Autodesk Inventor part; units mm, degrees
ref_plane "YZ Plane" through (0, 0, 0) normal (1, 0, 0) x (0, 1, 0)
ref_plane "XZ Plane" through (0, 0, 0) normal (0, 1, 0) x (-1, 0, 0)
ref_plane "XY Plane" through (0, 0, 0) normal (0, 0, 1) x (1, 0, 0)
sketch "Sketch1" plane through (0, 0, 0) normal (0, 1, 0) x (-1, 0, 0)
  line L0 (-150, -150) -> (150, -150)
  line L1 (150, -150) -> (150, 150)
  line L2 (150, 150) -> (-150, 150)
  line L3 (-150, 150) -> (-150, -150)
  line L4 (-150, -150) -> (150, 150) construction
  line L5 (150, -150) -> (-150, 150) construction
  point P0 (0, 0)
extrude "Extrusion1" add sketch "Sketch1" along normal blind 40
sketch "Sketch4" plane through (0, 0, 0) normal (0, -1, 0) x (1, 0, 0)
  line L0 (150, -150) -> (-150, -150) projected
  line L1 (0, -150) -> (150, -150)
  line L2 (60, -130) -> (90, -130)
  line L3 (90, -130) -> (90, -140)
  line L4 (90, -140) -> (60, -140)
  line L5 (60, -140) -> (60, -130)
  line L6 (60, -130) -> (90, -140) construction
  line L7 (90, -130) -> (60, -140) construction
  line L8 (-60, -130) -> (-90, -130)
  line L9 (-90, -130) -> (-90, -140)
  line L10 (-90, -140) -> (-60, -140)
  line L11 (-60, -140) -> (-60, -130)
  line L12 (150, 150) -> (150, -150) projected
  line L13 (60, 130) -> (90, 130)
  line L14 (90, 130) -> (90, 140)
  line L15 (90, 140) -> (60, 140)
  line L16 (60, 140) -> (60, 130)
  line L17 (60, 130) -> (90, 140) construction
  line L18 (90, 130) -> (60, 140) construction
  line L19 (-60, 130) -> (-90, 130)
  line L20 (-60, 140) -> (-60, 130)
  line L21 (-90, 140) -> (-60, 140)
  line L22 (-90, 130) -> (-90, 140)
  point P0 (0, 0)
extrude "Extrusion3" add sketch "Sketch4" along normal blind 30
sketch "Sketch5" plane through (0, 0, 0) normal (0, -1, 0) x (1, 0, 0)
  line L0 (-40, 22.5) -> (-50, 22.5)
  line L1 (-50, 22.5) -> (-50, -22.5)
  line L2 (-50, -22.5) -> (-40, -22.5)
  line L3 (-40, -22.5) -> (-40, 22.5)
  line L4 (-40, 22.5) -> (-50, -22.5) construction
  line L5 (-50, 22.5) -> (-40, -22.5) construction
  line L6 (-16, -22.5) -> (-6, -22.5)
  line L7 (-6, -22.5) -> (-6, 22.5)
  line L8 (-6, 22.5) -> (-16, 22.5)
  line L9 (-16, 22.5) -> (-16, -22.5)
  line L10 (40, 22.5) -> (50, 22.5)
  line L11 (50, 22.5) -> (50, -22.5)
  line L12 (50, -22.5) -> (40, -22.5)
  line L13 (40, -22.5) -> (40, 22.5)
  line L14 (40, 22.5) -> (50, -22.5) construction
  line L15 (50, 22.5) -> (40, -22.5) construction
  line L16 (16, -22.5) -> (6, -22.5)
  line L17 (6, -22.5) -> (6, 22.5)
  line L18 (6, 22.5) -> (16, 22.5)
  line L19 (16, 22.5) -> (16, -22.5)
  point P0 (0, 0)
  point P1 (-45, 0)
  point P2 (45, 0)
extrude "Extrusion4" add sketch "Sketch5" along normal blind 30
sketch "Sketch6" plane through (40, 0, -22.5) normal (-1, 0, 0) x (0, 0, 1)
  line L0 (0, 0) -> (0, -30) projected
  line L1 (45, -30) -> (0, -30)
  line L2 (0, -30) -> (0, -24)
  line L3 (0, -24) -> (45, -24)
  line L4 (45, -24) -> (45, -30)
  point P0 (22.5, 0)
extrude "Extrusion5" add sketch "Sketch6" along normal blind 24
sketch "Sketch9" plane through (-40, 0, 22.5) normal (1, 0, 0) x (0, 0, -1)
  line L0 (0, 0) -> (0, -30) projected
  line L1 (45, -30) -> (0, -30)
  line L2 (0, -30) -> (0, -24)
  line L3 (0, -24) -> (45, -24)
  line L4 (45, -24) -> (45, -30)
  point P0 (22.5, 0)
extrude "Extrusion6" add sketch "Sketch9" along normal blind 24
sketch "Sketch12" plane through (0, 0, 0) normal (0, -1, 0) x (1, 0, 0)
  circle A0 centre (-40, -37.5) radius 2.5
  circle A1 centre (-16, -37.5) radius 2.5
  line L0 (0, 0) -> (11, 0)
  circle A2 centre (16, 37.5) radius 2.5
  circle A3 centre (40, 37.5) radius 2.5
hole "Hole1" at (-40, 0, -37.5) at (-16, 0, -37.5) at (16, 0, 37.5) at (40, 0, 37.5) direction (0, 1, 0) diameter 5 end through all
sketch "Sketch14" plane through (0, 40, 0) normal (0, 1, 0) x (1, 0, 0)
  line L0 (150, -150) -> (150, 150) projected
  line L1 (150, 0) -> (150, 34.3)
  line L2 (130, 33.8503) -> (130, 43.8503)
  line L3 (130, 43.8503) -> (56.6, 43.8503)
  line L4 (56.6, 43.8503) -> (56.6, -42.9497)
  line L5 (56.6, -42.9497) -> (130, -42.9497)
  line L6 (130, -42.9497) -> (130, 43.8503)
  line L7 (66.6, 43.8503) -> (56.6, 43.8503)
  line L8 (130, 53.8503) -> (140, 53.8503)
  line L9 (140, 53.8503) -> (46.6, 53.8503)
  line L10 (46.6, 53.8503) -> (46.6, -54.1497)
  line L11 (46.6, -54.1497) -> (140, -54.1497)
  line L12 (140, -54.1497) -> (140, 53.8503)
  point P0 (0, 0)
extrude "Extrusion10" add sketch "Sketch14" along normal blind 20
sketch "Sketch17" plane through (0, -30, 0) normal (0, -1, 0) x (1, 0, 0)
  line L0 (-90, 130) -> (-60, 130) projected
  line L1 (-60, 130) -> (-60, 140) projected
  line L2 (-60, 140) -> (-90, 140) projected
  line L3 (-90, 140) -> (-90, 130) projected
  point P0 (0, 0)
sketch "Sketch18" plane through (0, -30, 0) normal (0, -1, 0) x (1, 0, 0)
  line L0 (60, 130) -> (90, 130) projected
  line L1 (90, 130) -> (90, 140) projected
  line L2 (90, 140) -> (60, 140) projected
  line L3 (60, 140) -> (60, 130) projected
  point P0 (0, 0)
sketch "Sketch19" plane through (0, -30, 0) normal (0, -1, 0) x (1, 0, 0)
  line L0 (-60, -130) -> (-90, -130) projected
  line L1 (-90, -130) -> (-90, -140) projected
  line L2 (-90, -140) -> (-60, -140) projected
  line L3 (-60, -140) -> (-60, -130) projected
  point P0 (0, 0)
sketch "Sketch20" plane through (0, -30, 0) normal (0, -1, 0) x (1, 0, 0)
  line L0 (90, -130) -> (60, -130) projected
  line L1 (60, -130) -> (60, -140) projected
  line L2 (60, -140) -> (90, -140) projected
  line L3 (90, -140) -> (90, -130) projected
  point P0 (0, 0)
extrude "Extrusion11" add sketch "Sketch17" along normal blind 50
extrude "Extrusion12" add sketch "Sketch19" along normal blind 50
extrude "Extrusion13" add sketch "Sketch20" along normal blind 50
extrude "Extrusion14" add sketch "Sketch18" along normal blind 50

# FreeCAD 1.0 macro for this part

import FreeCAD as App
import Part
import Sketcher
Q = App.Units.Quantity


def add_polygon(sketch, points):
    """Adds a closed chain of lines whose ends are joined by coincident constraints."""
    first, n = sketch.GeometryCount, len(points)
    for a, b in zip(points, points[1:] + points[:1]):
        sketch.addGeometry(Part.LineSegment(App.Vector(*a, 0), App.Vector(*b, 0)), False)
    for i in range(n):
        sketch.addConstraint(Sketcher.Constraint("Coincident", first + i, 2, first + (i + 1) % n, 1))

doc = App.newDocument("Part")
body = doc.addObject("PartDesign::Body", "Body")

# Sketch on XZ plane
sketch1 = body.newObject("Sketcher::SketchObject", "Sketch")
sketch1.AttachmentSupport = (doc.getObject("XZ_Plane"), [""])
sketch1.MapMode = "FlatFace"
add_polygon(sketch1, [(150, 150), (150, -150), (-150, -150), (-150, 150)])  # lines 0-3
sketch1.addConstraint(Sketcher.Constraint("Vertical", 0))
sketch1.addConstraint(Sketcher.Constraint("Horizontal", 1))
sketch1.addConstraint(Sketcher.Constraint("Vertical", 2))
sketch1.addConstraint(Sketcher.Constraint("Horizontal", 3))
sketch1.addConstraint(Sketcher.Constraint("Symmetric", 0, 2, 2, 2, -1, 1))
sketch1.addConstraint(Sketcher.Constraint("Equal", 3, 0))
sketch1.addConstraint(Sketcher.Constraint("DistanceX", 1, 2, 1, 1, Q("300 mm")))
pad1 = body.newObject("PartDesign::Pad", "Pad")
pad1.Profile = sketch1
pad1.Length = 40
pad1.Reversed = True

# Sketch on XZ plane
sketch2 = body.newObject("Sketcher::SketchObject", "Sketch001")
sketch2.AttachmentSupport = (doc.getObject("XZ_Plane"), [""])
sketch2.MapMode = "FlatFace"
add_polygon(sketch2, [(90, -130), (60, -130), (60, -140), (90, -140)])  # lines 0-3
add_polygon(sketch2, [(-60, -140), (-60, -130), (-90, -130), (-90, -140)])  # lines 4-7
add_polygon(sketch2, [(60, 140), (60, 130), (90, 130), (90, 140)])  # lines 8-11
add_polygon(sketch2, [(-90, 130), (-60, 130), (-60, 140), (-90, 140)])  # lines 12-15
sketch2.addConstraint(Sketcher.Constraint("Horizontal", 0))
sketch2.addConstraint(Sketcher.Constraint("Vertical", 1))
sketch2.addConstraint(Sketcher.Constraint("Horizontal", 2))
sketch2.addConstraint(Sketcher.Constraint("Vertical", 3))
sketch2.addConstraint(Sketcher.Constraint("Vertical", 4))
sketch2.addConstraint(Sketcher.Constraint("Horizontal", 5))
sketch2.addConstraint(Sketcher.Constraint("Vertical", 6))
sketch2.addConstraint(Sketcher.Constraint("Horizontal", 7))
sketch2.addConstraint(Sketcher.Constraint("Vertical", 8))
sketch2.addConstraint(Sketcher.Constraint("Horizontal", 9))
sketch2.addConstraint(Sketcher.Constraint("Vertical", 10))
sketch2.addConstraint(Sketcher.Constraint("Horizontal", 11))
sketch2.addConstraint(Sketcher.Constraint("Horizontal", 12))
sketch2.addConstraint(Sketcher.Constraint("Vertical", 13))
sketch2.addConstraint(Sketcher.Constraint("Horizontal", 14))
sketch2.addConstraint(Sketcher.Constraint("Vertical", 15))
sketch2.addConstraint(Sketcher.Constraint("Symmetric", 4, 2, 8, 2, -1, 1))
sketch2.addConstraint(Sketcher.Constraint("Symmetric", 6, 2, 10, 2, -1, 1))
sketch2.addConstraint(Sketcher.Constraint("Symmetric", 0, 2, 12, 2, -1, 1))
sketch2.addConstraint(Sketcher.Constraint("Symmetric", 2, 2, 14, 2, -1, 1))
sketch2.addConstraint(Sketcher.Constraint("Symmetric", 0, 2, 4, 2, -2))
sketch2.addConstraint(Sketcher.Constraint("Symmetric", 2, 2, 6, 2, -2))
sketch2.addConstraint(Sketcher.Constraint("DistanceX", 0, 2, 0, 1, Q("30 mm")))
sketch2.addConstraint(Sketcher.Constraint("DistanceY", 1, 2, 1, 1, Q("10 mm")))
sketch2.addConstraint(Sketcher.Constraint("DistanceX", -1, 1, 0, 2, Q("60 mm")))
sketch2.addConstraint(Sketcher.Constraint("DistanceY", 0, 2, -1, 1, Q("130 mm")))
pad2 = body.newObject("PartDesign::Pad", "Pad001")
pad2.Profile = sketch2
pad2.Length = 30

# Sketch on XZ plane
sketch3 = body.newObject("Sketcher::SketchObject", "Sketch002")
sketch3.AttachmentSupport = (doc.getObject("XZ_Plane"), [""])
sketch3.MapMode = "FlatFace"
add_polygon(sketch3, [(-40, -22.5), (-40, 22.5), (-50, 22.5), (-50, -22.5)])  # lines 0-3
add_polygon(sketch3, [(-16, 22.5), (-16, -22.5), (-6, -22.5), (-6, 22.5)])  # lines 4-7
add_polygon(sketch3, [(50, 22.5), (40, 22.5), (40, -22.5), (50, -22.5)])  # lines 8-11
add_polygon(sketch3, [(6, -22.5), (16, -22.5), (16, 22.5), (6, 22.5)])  # lines 12-15
sketch3.addConstraint(Sketcher.Constraint("Vertical", 0))
sketch3.addConstraint(Sketcher.Constraint("Horizontal", 1))
sketch3.addConstraint(Sketcher.Constraint("Vertical", 2))
sketch3.addConstraint(Sketcher.Constraint("Horizontal", 3))
sketch3.addConstraint(Sketcher.Constraint("Vertical", 4))
sketch3.addConstraint(Sketcher.Constraint("Horizontal", 5))
sketch3.addConstraint(Sketcher.Constraint("Vertical", 6))
sketch3.addConstraint(Sketcher.Constraint("Horizontal", 7))
sketch3.addConstraint(Sketcher.Constraint("Horizontal", 8))
sketch3.addConstraint(Sketcher.Constraint("Vertical", 9))
sketch3.addConstraint(Sketcher.Constraint("Horizontal", 10))
sketch3.addConstraint(Sketcher.Constraint("Vertical", 11))
sketch3.addConstraint(Sketcher.Constraint("Horizontal", 12))
sketch3.addConstraint(Sketcher.Constraint("Vertical", 13))
sketch3.addConstraint(Sketcher.Constraint("Horizontal", 14))
sketch3.addConstraint(Sketcher.Constraint("Vertical", 15))
sketch3.addConstraint(Sketcher.Constraint("Symmetric", 3, 2, 8, 2, -1, 1))
sketch3.addConstraint(Sketcher.Constraint("Symmetric", 1, 2, 10, 2, -1, 1))
sketch3.addConstraint(Sketcher.Constraint("Symmetric", 7, 2, 12, 2, -1, 1))
sketch3.addConstraint(Sketcher.Constraint("Symmetric", 5, 2, 14, 2, -1, 1))
sketch3.addConstraint(Sketcher.Constraint("Horizontal", 3, 2, 4, 2))
sketch3.addConstraint(Sketcher.Constraint("Horizontal", 1, 2, 6, 2))
sketch3.addConstraint(Sketcher.Constraint("Horizontal", 7, 2, 8, 2))
sketch3.addConstraint(Sketcher.Constraint("Equal", 3, 5))
sketch3.addConstraint(Sketcher.Constraint("DistanceX", 1, 2, 1, 1, Q("10 mm")))
sketch3.addConstraint(Sketcher.Constraint("DistanceY", 0, 1, 0, 2, Q("45 mm")))
sketch3.addConstraint(Sketcher.Constraint("DistanceX", 0, 2, -1, 1, Q("40 mm")))
sketch3.addConstraint(Sketcher.Constraint("DistanceX", 4, 2, -1, 1, Q("16 mm")))
pad3 = body.newObject("PartDesign::Pad", "Pad002")
pad3.Profile = sketch3
pad3.Length = 30

# Sketch on YZ plane
sketch4 = body.newObject("Sketcher::SketchObject", "Sketch003")
sketch4.AttachmentSupport = (doc.getObject("YZ_Plane"), [""])
sketch4.MapMode = "FlatFace"
sketch4.AttachmentOffset = App.Placement(App.Vector(0, 0, 40), App.Rotation())
add_polygon(sketch4, [(-24, 22.5), (-24, -22.5), (-30, -22.5), (-30, 22.5)])  # lines 0-3
sketch4.addConstraint(Sketcher.Constraint("Vertical", 0))
sketch4.addConstraint(Sketcher.Constraint("Horizontal", 1))
sketch4.addConstraint(Sketcher.Constraint("Vertical", 2))
sketch4.addConstraint(Sketcher.Constraint("Horizontal", 3))
sketch4.addConstraint(Sketcher.Constraint("DistanceX", 1, 2, 1, 1, Q("6 mm")))
sketch4.addConstraint(Sketcher.Constraint("DistanceY", 0, 2, 0, 1, Q("45 mm")))
sketch4.addConstraint(Sketcher.Constraint("DistanceX", 0, 2, -1, 1, Q("24 mm")))
sketch4.addConstraint(Sketcher.Constraint("DistanceY", 0, 2, -1, 1, Q("22.5 mm")))
pad4 = body.newObject("PartDesign::Pad", "Pad003")
pad4.Profile = sketch4
pad4.Length = 24
pad4.Reversed = True

# Sketch on YZ plane
sketch5 = body.newObject("Sketcher::SketchObject", "Sketch004")
sketch5.AttachmentSupport = (doc.getObject("YZ_Plane"), [""])
sketch5.MapMode = "FlatFace"
sketch5.AttachmentOffset = App.Placement(App.Vector(0, 0, -40), App.Rotation())
add_polygon(sketch5, [(-24, -22.5), (-24, 22.5), (-30, 22.5), (-30, -22.5)])  # lines 0-3
sketch5.addConstraint(Sketcher.Constraint("Vertical", 0))
sketch5.addConstraint(Sketcher.Constraint("Horizontal", 1))
sketch5.addConstraint(Sketcher.Constraint("Vertical", 2))
sketch5.addConstraint(Sketcher.Constraint("Horizontal", 3))
sketch5.addConstraint(Sketcher.Constraint("DistanceX", 1, 2, 1, 1, Q("6 mm")))
sketch5.addConstraint(Sketcher.Constraint("DistanceY", 0, 1, 0, 2, Q("45 mm")))
sketch5.addConstraint(Sketcher.Constraint("DistanceX", 0, 2, -1, 1, Q("24 mm")))
sketch5.addConstraint(Sketcher.Constraint("DistanceY", -1, 1, 0, 2, Q("22.5 mm")))
pad5 = body.newObject("PartDesign::Pad", "Pad004")
pad5.Profile = sketch5
pad5.Length = 24

# Sketch on XZ plane
sketch6 = body.newObject("Sketcher::SketchObject", "Sketch005")
sketch6.AttachmentSupport = (doc.getObject("XZ_Plane"), [""])
sketch6.MapMode = "FlatFace"
sketch6.addGeometry(Part.Circle(App.Vector(-40, -37.5, 0), App.Vector(0, 0, 1), 2.5), False)
sketch6.addGeometry(Part.Circle(App.Vector(-16, -37.5, 0), App.Vector(0, 0, 1), 2.5), False)
sketch6.addGeometry(Part.Circle(App.Vector(16, 37.5, 0), App.Vector(0, 0, 1), 2.5), False)
sketch6.addGeometry(Part.Circle(App.Vector(40, 37.5, 0), App.Vector(0, 0, 1), 2.5), False)
sketch6.addConstraint(Sketcher.Constraint("Equal", 0, 1))
sketch6.addConstraint(Sketcher.Constraint("Equal", 1, 2))
sketch6.addConstraint(Sketcher.Constraint("Equal", 2, 3))
sketch6.addConstraint(Sketcher.Constraint("Symmetric", 1, 3, 2, 3, -1, 1))
sketch6.addConstraint(Sketcher.Constraint("Symmetric", 0, 3, 3, 3, -1, 1))
sketch6.addConstraint(Sketcher.Constraint("Horizontal", 0, 3, 1, 3))
sketch6.addConstraint(Sketcher.Constraint("Diameter", 0, Q("5 mm")))
sketch6.addConstraint(Sketcher.Constraint("DistanceX", 0, 3, -1, 1, Q("40 mm")))
sketch6.addConstraint(Sketcher.Constraint("DistanceX", 1, 3, -1, 1, Q("16 mm")))
sketch6.addConstraint(Sketcher.Constraint("DistanceY", 1, 3, 2, 3, Q("75 mm")))
doc.recompute()
hole = body.newObject("PartDesign::Hole", "Hole")
hole.Profile = sketch6
hole.ThreadType = "None"
hole.Diameter = 5
hole.DepthType = "ThroughAll"

# Sketch on XZ plane
sketch7 = body.newObject("Sketcher::SketchObject", "Sketch006")
sketch7.AttachmentSupport = (doc.getObject("XZ_Plane"), [""])
sketch7.MapMode = "FlatFace"
sketch7.AttachmentOffset = App.Placement(App.Vector(0, 0, -40), App.Rotation())
add_polygon(sketch7, [(140, -53.8503), (46.6, -53.8503), (46.6, 54.1497), (140, 54.1497)])  # lines 0-3
add_polygon(sketch7, [(130, -43.8503), (130, 42.9497), (56.6, 42.9497), (56.6, -43.8503)])  # lines 4-7
sketch7.addConstraint(Sketcher.Constraint("Horizontal", 0))
sketch7.addConstraint(Sketcher.Constraint("Vertical", 1))
sketch7.addConstraint(Sketcher.Constraint("Horizontal", 2))
sketch7.addConstraint(Sketcher.Constraint("Vertical", 3))
sketch7.addConstraint(Sketcher.Constraint("Vertical", 4))
sketch7.addConstraint(Sketcher.Constraint("Horizontal", 5))
sketch7.addConstraint(Sketcher.Constraint("Vertical", 6))
sketch7.addConstraint(Sketcher.Constraint("Horizontal", 7))
sketch7.addConstraint(Sketcher.Constraint("DistanceY", 1, 1, 1, 2, Q("108 mm")))
sketch7.addConstraint(Sketcher.Constraint("DistanceX", 0, 2, 0, 1, Q("93.4 mm")))
sketch7.addConstraint(Sketcher.Constraint("DistanceX", 5, 2, 5, 1, Q("73.4 mm")))
sketch7.addConstraint(Sketcher.Constraint("DistanceY", 4, 1, 4, 2, Q("86.8 mm")))
sketch7.addConstraint(Sketcher.Constraint("DistanceX", -1, 1, 2, 2, Q("140 mm")))
sketch7.addConstraint(Sketcher.Constraint("DistanceX", -1, 1, 4, 2, Q("130 mm")))
sketch7.addConstraint(Sketcher.Constraint("DistanceY", 0, 2, 6, 2, Q("10 mm")))
sketch7.addConstraint(Sketcher.Constraint("DistanceY", 0, 2, -1, 1, Q("53.8503 mm")))
pad6 = body.newObject("PartDesign::Pad", "Pad005")
pad6.Profile = sketch7
pad6.Length = 20
pad6.Reversed = True

# Sketch on XZ plane
sketch8 = body.newObject("Sketcher::SketchObject", "Sketch007")
sketch8.AttachmentSupport = (doc.getObject("XZ_Plane"), [""])
sketch8.MapMode = "FlatFace"
sketch8.AttachmentOffset = App.Placement(App.Vector(0, 0, 30), App.Rotation())
add_polygon(sketch8, [(-90, 140), (-90, 130), (-60, 130), (-60, 140)])  # lines 0-3
sketch8.addConstraint(Sketcher.Constraint("Vertical", 0))
sketch8.addConstraint(Sketcher.Constraint("Horizontal", 1))
sketch8.addConstraint(Sketcher.Constraint("Vertical", 2))
sketch8.addConstraint(Sketcher.Constraint("Horizontal", 3))
sketch8.addConstraint(Sketcher.Constraint("DistanceX", 1, 1, 1, 2, Q("30 mm")))
sketch8.addConstraint(Sketcher.Constraint("DistanceY", 0, 2, 0, 1, Q("10 mm")))
sketch8.addConstraint(Sketcher.Constraint("DistanceX", 0, 2, -1, 1, Q("90 mm")))
sketch8.addConstraint(Sketcher.Constraint("DistanceY", -1, 1, 0, 2, Q("130 mm")))
pad7 = body.newObject("PartDesign::Pad", "Pad006")
pad7.Profile = sketch8
pad7.Length = 50

# Sketch on XZ plane
sketch9 = body.newObject("Sketcher::SketchObject", "Sketch008")
sketch9.AttachmentSupport = (doc.getObject("XZ_Plane"), [""])
sketch9.MapMode = "FlatFace"
sketch9.AttachmentOffset = App.Placement(App.Vector(0, 0, 30), App.Rotation())
add_polygon(sketch9, [(-60, -140), (-60, -130), (-90, -130), (-90, -140)])  # lines 0-3
sketch9.addConstraint(Sketcher.Constraint("Vertical", 0))
sketch9.addConstraint(Sketcher.Constraint("Horizontal", 1))
sketch9.addConstraint(Sketcher.Constraint("Vertical", 2))
sketch9.addConstraint(Sketcher.Constraint("Horizontal", 3))
sketch9.addConstraint(Sketcher.Constraint("DistanceX", 1, 2, 1, 1, Q("30 mm")))
sketch9.addConstraint(Sketcher.Constraint("DistanceY", 0, 1, 0, 2, Q("10 mm")))
sketch9.addConstraint(Sketcher.Constraint("DistanceX", 0, 2, -1, 1, Q("60 mm")))
sketch9.addConstraint(Sketcher.Constraint("DistanceY", 0, 2, -1, 1, Q("130 mm")))
pad8 = body.newObject("PartDesign::Pad", "Pad007")
pad8.Profile = sketch9
pad8.Length = 50

# Sketch on XZ plane
sketch10 = body.newObject("Sketcher::SketchObject", "Sketch009")
sketch10.AttachmentSupport = (doc.getObject("XZ_Plane"), [""])
sketch10.MapMode = "FlatFace"
sketch10.AttachmentOffset = App.Placement(App.Vector(0, 0, 30), App.Rotation())
add_polygon(sketch10, [(90, -140), (90, -130), (60, -130), (60, -140)])  # lines 0-3
sketch10.addConstraint(Sketcher.Constraint("Vertical", 0))
sketch10.addConstraint(Sketcher.Constraint("Horizontal", 1))
sketch10.addConstraint(Sketcher.Constraint("Vertical", 2))
sketch10.addConstraint(Sketcher.Constraint("Horizontal", 3))
sketch10.addConstraint(Sketcher.Constraint("DistanceX", 1, 2, 1, 1, Q("30 mm")))
sketch10.addConstraint(Sketcher.Constraint("DistanceY", 0, 1, 0, 2, Q("10 mm")))
sketch10.addConstraint(Sketcher.Constraint("DistanceX", -1, 1, 0, 2, Q("90 mm")))
sketch10.addConstraint(Sketcher.Constraint("DistanceY", 0, 2, -1, 1, Q("130 mm")))
pad9 = body.newObject("PartDesign::Pad", "Pad008")
pad9.Profile = sketch10
pad9.Length = 50

# Sketch on XZ plane
sketch11 = body.newObject("Sketcher::SketchObject", "Sketch010")
sketch11.AttachmentSupport = (doc.getObject("XZ_Plane"), [""])
sketch11.MapMode = "FlatFace"
sketch11.AttachmentOffset = App.Placement(App.Vector(0, 0, 30), App.Rotation())
add_polygon(sketch11, [(60, 140), (60, 130), (90, 130), (90, 140)])  # lines 0-3
sketch11.addConstraint(Sketcher.Constraint("Vertical", 0))
sketch11.addConstraint(Sketcher.Constraint("Horizontal", 1))
sketch11.addConstraint(Sketcher.Constraint("Vertical", 2))
sketch11.addConstraint(Sketcher.Constraint("Horizontal", 3))
sketch11.addConstraint(Sketcher.Constraint("DistanceX", 1, 1, 1, 2, Q("30 mm")))
sketch11.addConstraint(Sketcher.Constraint("DistanceY", 0, 2, 0, 1, Q("10 mm")))
sketch11.addConstraint(Sketcher.Constraint("DistanceX", -1, 1, 0, 2, Q("60 mm")))
sketch11.addConstraint(Sketcher.Constraint("DistanceY", -1, 1, 0, 2, Q("130 mm")))
pad10 = body.newObject("PartDesign::Pad", "Pad009")
pad10.Profile = sketch11
pad10.Length = 50

doc.recompute()
